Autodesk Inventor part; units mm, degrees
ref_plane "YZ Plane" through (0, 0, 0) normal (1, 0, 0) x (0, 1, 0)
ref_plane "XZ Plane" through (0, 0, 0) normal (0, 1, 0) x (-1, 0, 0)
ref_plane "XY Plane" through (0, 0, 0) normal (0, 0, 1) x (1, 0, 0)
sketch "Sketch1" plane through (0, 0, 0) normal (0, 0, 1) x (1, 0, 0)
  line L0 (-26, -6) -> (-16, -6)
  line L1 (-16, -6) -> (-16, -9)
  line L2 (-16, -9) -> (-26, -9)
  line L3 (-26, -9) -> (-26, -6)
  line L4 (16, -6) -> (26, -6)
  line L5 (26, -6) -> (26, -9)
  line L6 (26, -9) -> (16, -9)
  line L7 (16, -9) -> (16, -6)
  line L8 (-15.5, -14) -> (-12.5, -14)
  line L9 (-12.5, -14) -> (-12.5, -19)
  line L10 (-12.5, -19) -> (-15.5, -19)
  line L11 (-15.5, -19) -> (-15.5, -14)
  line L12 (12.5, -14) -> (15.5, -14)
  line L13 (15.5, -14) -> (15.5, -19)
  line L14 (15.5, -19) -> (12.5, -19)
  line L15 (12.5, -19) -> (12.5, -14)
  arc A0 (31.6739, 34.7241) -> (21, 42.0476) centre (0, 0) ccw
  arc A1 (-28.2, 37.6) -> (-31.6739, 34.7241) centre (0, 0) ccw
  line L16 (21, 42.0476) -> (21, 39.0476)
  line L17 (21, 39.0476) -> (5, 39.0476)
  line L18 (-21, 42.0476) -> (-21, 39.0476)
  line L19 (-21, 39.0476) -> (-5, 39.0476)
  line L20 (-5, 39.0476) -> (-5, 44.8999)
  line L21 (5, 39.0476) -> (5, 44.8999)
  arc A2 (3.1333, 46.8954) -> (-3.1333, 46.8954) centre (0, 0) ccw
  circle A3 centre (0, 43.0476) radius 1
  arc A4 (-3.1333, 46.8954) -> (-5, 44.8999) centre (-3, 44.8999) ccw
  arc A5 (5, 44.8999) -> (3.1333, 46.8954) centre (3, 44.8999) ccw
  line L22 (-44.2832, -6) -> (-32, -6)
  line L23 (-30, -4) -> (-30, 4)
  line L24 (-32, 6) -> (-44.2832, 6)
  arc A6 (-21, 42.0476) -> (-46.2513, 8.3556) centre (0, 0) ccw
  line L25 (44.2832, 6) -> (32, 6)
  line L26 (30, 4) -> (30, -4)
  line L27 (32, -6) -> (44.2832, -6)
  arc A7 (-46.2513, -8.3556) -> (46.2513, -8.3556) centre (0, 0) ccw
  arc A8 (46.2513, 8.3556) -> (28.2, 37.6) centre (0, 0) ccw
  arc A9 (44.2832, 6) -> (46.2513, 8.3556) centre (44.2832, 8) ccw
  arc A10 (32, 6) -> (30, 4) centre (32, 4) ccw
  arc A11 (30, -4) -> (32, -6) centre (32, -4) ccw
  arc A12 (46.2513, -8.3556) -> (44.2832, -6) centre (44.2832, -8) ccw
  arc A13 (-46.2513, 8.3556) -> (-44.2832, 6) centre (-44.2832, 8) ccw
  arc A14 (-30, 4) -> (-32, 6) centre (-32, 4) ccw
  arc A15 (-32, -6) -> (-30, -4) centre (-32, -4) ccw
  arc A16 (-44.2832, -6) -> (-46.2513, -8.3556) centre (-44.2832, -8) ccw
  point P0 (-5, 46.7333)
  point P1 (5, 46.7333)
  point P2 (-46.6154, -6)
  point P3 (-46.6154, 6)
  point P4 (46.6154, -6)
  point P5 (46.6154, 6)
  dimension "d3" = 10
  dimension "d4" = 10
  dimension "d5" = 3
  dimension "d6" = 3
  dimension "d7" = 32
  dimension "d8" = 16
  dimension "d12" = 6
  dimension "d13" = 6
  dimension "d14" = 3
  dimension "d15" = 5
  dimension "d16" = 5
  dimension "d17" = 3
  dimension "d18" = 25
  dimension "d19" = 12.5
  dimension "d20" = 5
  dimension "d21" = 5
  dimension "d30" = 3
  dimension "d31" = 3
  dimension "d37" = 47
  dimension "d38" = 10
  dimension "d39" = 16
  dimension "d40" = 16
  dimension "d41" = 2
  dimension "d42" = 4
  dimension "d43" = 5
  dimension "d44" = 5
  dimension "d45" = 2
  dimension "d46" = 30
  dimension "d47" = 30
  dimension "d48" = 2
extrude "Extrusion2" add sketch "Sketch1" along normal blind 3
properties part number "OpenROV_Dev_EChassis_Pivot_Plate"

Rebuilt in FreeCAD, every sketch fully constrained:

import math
import FreeCAD as App
import Part
import Sketcher
Q = App.Units.Quantity

doc = App.newDocument("Part")
body = doc.addObject("PartDesign::Body", "Body")

sketch1 = doc.addObject("Sketcher::SketchObject", "Sketch")
body.addObject(sketch1)
sketch1.AttachmentSupport = (doc.XY_Plane, [""])
sketch1.MapMode = "FlatFace"
sketch1.addGeometry(Part.ArcOfCircle(Part.Circle(App.Vector(0, 0, 0), App.Vector(0, 0, 1), 47.000007), math.radians(10.240406), math.radians(47.630212)), False)
sketch1.addGeometry(Part.ArcOfCircle(Part.Circle(App.Vector(0, 0, 0), App.Vector(0, 0, 1), 47.000007), math.radians(47.630212), math.radians(63.460899)), False)
sketch1.addGeometry(Part.LineSegment(App.Vector(21, 42.0476, 0), App.Vector(21, 39.0476, 0)), False)
sketch1.addGeometry(Part.LineSegment(App.Vector(21, 39.0476, 0), App.Vector(5, 39.0476, 0)), False)
sketch1.addGeometry(Part.LineSegment(App.Vector(5, 39.0476, 0), App.Vector(5, 44.8999, 0)), False)
sketch1.addGeometry(Part.ArcOfCircle(Part.Circle(App.Vector(3, 44.8999, 0), App.Vector(0, 0, 1), 2), math.radians(0), math.radians(86.178302)), False)
sketch1.addGeometry(Part.ArcOfCircle(Part.Circle(App.Vector(0, 0, 0), App.Vector(0, 0, 1), 46.999959), math.radians(86.177484), math.radians(93.822516)), False)
sketch1.addGeometry(Part.ArcOfCircle(Part.Circle(App.Vector(-3, 44.8999, 0), App.Vector(0, 0, 1), 1.999947), math.radians(93.821698), math.radians(180)), False)
sketch1.addGeometry(Part.LineSegment(App.Vector(-5, 44.8999, 0), App.Vector(-5, 39.0476, 0)), False)
sketch1.addGeometry(Part.LineSegment(App.Vector(-5, 39.0476, 0), App.Vector(-21, 39.0476, 0)), False)
sketch1.addGeometry(Part.LineSegment(App.Vector(-21, 39.0476, 0), App.Vector(-21, 42.0476, 0)), False)
sketch1.addGeometry(Part.ArcOfCircle(Part.Circle(App.Vector(0, 0, 0), App.Vector(0, 0, 1), 46.999959), math.radians(116.539101), math.radians(126.869898)), False)
sketch1.addGeometry(Part.ArcOfCircle(Part.Circle(App.Vector(-0.002682, 0.003403, 0), App.Vector(0, 0, 1), 46.995668), math.radians(126.869771), math.radians(132.370168)), False)
sketch1.addGeometry(Part.ArcOfCircle(Part.Circle(App.Vector(0, 0, 0), App.Vector(0, 0, 1), 46.999959), math.radians(132.369788), math.radians(169.759594)), False)
sketch1.addGeometry(Part.ArcOfCircle(Part.Circle(App.Vector(-44.2832, 8, 0), App.Vector(0, 0, 1), 1.999967), math.radians(169.758188), math.radians(270)), False)
sketch1.addGeometry(Part.LineSegment(App.Vector(-44.2832, 6, 0), App.Vector(-32, 6, 0)), False)
sketch1.addGeometry(Part.ArcOfCircle(Part.Circle(App.Vector(-32, 4, 0), App.Vector(0, 0, 1), 2), math.radians(0), math.radians(90)), False)
sketch1.addGeometry(Part.LineSegment(App.Vector(-30, 4, 0), App.Vector(-30, -4, 0)), False)
sketch1.addGeometry(Part.ArcOfCircle(Part.Circle(App.Vector(-32, -4, 0), App.Vector(0, 0, 1), 2), math.radians(-90), math.radians(0)), False)
sketch1.addGeometry(Part.LineSegment(App.Vector(-32, -6, 0), App.Vector(-44.2832, -6, 0)), False)
sketch1.addGeometry(Part.ArcOfCircle(Part.Circle(App.Vector(-44.2832, -8, 0), App.Vector(0, 0, 1), 2), math.radians(90), math.radians(190.241812)), False)
sketch1.addGeometry(Part.ArcOfCircle(Part.Circle(App.Vector(0, 0, 0), App.Vector(0, 0, 1), 46.999987), math.radians(-169.759594), math.radians(-10.240406)), False)
sketch1.addGeometry(Part.ArcOfCircle(Part.Circle(App.Vector(44.2832, -8, 0), App.Vector(0, 0, 1), 1.999967), math.radians(-10.241812), math.radians(90)), False)
sketch1.addGeometry(Part.LineSegment(App.Vector(44.2832, -6, 0), App.Vector(32, -6, 0)), False)
sketch1.addGeometry(Part.ArcOfCircle(Part.Circle(App.Vector(32, -4, 0), App.Vector(0, 0, 1), 2), math.radians(180), math.radians(270)), False)
sketch1.addGeometry(Part.LineSegment(App.Vector(30, -4, 0), App.Vector(30, 4, 0)), False)
sketch1.addGeometry(Part.ArcOfCircle(Part.Circle(App.Vector(32, 4, 0), App.Vector(0, 0, 1), 2), math.radians(90), math.radians(180)), False)
sketch1.addGeometry(Part.LineSegment(App.Vector(32, 6, 0), App.Vector(44.2832, 6, 0)), False)
sketch1.addGeometry(Part.ArcOfCircle(Part.Circle(App.Vector(44.2832, 8, 0), App.Vector(0, 0, 1), 2), math.radians(-90), math.radians(10.241812)), False)
sketch1.addGeometry(Part.LineSegment(App.Vector(-15.5, -19, 0), App.Vector(-15.5, -14, 0)), False)
sketch1.addGeometry(Part.LineSegment(App.Vector(-15.5, -14, 0), App.Vector(-12.5, -14, 0)), False)
sketch1.addGeometry(Part.LineSegment(App.Vector(-12.5, -14, 0), App.Vector(-12.5, -19, 0)), False)
sketch1.addGeometry(Part.LineSegment(App.Vector(-12.5, -19, 0), App.Vector(-15.5, -19, 0)), False)
sketch1.addGeometry(Part.LineSegment(App.Vector(-26, -9, 0), App.Vector(-26, -6, 0)), False)
sketch1.addGeometry(Part.LineSegment(App.Vector(-26, -6, 0), App.Vector(-16, -6, 0)), False)
sketch1.addGeometry(Part.LineSegment(App.Vector(-16, -6, 0), App.Vector(-16, -9, 0)), False)
sketch1.addGeometry(Part.LineSegment(App.Vector(-16, -9, 0), App.Vector(-26, -9, 0)), False)
sketch1.addGeometry(Part.LineSegment(App.Vector(12.5, -19, 0), App.Vector(12.5, -14, 0)), False)
sketch1.addGeometry(Part.LineSegment(App.Vector(12.5, -14, 0), App.Vector(15.5, -14, 0)), False)
sketch1.addGeometry(Part.LineSegment(App.Vector(15.5, -14, 0), App.Vector(15.5, -19, 0)), False)
sketch1.addGeometry(Part.LineSegment(App.Vector(15.5, -19, 0), App.Vector(12.5, -19, 0)), False)
sketch1.addGeometry(Part.LineSegment(App.Vector(16, -9, 0), App.Vector(16, -6, 0)), False)
sketch1.addGeometry(Part.LineSegment(App.Vector(16, -6, 0), App.Vector(26, -6, 0)), False)
sketch1.addGeometry(Part.LineSegment(App.Vector(26, -6, 0), App.Vector(26, -9, 0)), False)
sketch1.addGeometry(Part.LineSegment(App.Vector(26, -9, 0), App.Vector(16, -9, 0)), False)
sketch1.addGeometry(Part.Circle(App.Vector(0, 43.0476, 0), App.Vector(0, 0, 1), 1), False)
sketch1.addConstraint(Sketcher.Constraint("Coincident", 0, 2, 1, 1))
sketch1.addConstraint(Sketcher.Constraint("Coincident", 1, 2, 2, 1))
sketch1.addConstraint(Sketcher.Constraint("Coincident", 2, 2, 3, 1))
sketch1.addConstraint(Sketcher.Constraint("Coincident", 3, 2, 4, 1))
sketch1.addConstraint(Sketcher.Constraint("Coincident", 4, 2, 5, 1))
sketch1.addConstraint(Sketcher.Constraint("Coincident", 5, 2, 6, 1))
sketch1.addConstraint(Sketcher.Constraint("Coincident", 6, 2, 7, 1))
sketch1.addConstraint(Sketcher.Constraint("Coincident", 7, 2, 8, 1))
sketch1.addConstraint(Sketcher.Constraint("Coincident", 8, 2, 9, 1))
sketch1.addConstraint(Sketcher.Constraint("Coincident", 9, 2, 10, 1))
sketch1.addConstraint(Sketcher.Constraint("Coincident", 10, 2, 11, 1))
sketch1.addConstraint(Sketcher.Constraint("Coincident", 11, 2, 12, 1))
sketch1.addConstraint(Sketcher.Constraint("Coincident", 12, 2, 13, 1))
sketch1.addConstraint(Sketcher.Constraint("Coincident", 13, 2, 14, 1))
sketch1.addConstraint(Sketcher.Constraint("Coincident", 14, 2, 15, 1))
sketch1.addConstraint(Sketcher.Constraint("Coincident", 15, 2, 16, 2))
sketch1.addConstraint(Sketcher.Constraint("Coincident", 16, 1, 17, 1))
sketch1.addConstraint(Sketcher.Constraint("Coincident", 17, 2, 18, 2))
sketch1.addConstraint(Sketcher.Constraint("Coincident", 18, 1, 19, 1))
sketch1.addConstraint(Sketcher.Constraint("Coincident", 19, 2, 20, 1))
sketch1.addConstraint(Sketcher.Constraint("Coincident", 20, 2, 21, 1))
sketch1.addConstraint(Sketcher.Constraint("Coincident", 21, 2, 22, 1))
sketch1.addConstraint(Sketcher.Constraint("Coincident", 22, 2, 23, 1))
sketch1.addConstraint(Sketcher.Constraint("Coincident", 23, 2, 24, 2))
sketch1.addConstraint(Sketcher.Constraint("Coincident", 24, 1, 25, 1))
sketch1.addConstraint(Sketcher.Constraint("Coincident", 25, 2, 26, 2))
sketch1.addConstraint(Sketcher.Constraint("Coincident", 26, 1, 27, 1))
sketch1.addConstraint(Sketcher.Constraint("Coincident", 27, 2, 28, 1))
sketch1.addConstraint(Sketcher.Constraint("Coincident", 28, 2, 0, 1))
sketch1.addConstraint(Sketcher.Constraint("Coincident", 29, 2, 30, 1))
sketch1.addConstraint(Sketcher.Constraint("Coincident", 30, 2, 31, 1))
sketch1.addConstraint(Sketcher.Constraint("Coincident", 31, 2, 32, 1))
sketch1.addConstraint(Sketcher.Constraint("Coincident", 32, 2, 29, 1))
sketch1.addConstraint(Sketcher.Constraint("Coincident", 33, 2, 34, 1))
sketch1.addConstraint(Sketcher.Constraint("Coincident", 34, 2, 35, 1))
sketch1.addConstraint(Sketcher.Constraint("Coincident", 35, 2, 36, 1))
sketch1.addConstraint(Sketcher.Constraint("Coincident", 36, 2, 33, 1))
sketch1.addConstraint(Sketcher.Constraint("Coincident", 37, 2, 38, 1))
sketch1.addConstraint(Sketcher.Constraint("Coincident", 38, 2, 39, 1))
sketch1.addConstraint(Sketcher.Constraint("Coincident", 39, 2, 40, 1))
sketch1.addConstraint(Sketcher.Constraint("Coincident", 40, 2, 37, 1))
sketch1.addConstraint(Sketcher.Constraint("Coincident", 41, 2, 42, 1))
sketch1.addConstraint(Sketcher.Constraint("Coincident", 42, 2, 43, 1))
sketch1.addConstraint(Sketcher.Constraint("Coincident", 43, 2, 44, 1))
sketch1.addConstraint(Sketcher.Constraint("Coincident", 44, 2, 41, 1))
sketch1.addConstraint(Sketcher.Constraint("Vertical", 2))
sketch1.addConstraint(Sketcher.Constraint("Horizontal", 3))
sketch1.addConstraint(Sketcher.Constraint("Vertical", 4))
sketch1.addConstraint(Sketcher.Constraint("Vertical", 8))
sketch1.addConstraint(Sketcher.Constraint("Horizontal", 9))
sketch1.addConstraint(Sketcher.Constraint("Vertical", 10))
sketch1.addConstraint(Sketcher.Constraint("Horizontal", 15))
sketch1.addConstraint(Sketcher.Constraint("Vertical", 17))
sketch1.addConstraint(Sketcher.Constraint("Horizontal", 19))
sketch1.addConstraint(Sketcher.Constraint("Horizontal", 23))
sketch1.addConstraint(Sketcher.Constraint("Vertical", 25))
sketch1.addConstraint(Sketcher.Constraint("Horizontal", 27))
sketch1.addConstraint(Sketcher.Constraint("Vertical", 29))
sketch1.addConstraint(Sketcher.Constraint("Horizontal", 30))
sketch1.addConstraint(Sketcher.Constraint("Vertical", 31))
sketch1.addConstraint(Sketcher.Constraint("Horizontal", 32))
sketch1.addConstraint(Sketcher.Constraint("Vertical", 33))
sketch1.addConstraint(Sketcher.Constraint("Horizontal", 34))
sketch1.addConstraint(Sketcher.Constraint("Vertical", 35))
sketch1.addConstraint(Sketcher.Constraint("Horizontal", 36))
sketch1.addConstraint(Sketcher.Constraint("Vertical", 37))
sketch1.addConstraint(Sketcher.Constraint("Horizontal", 38))
sketch1.addConstraint(Sketcher.Constraint("Vertical", 39))
sketch1.addConstraint(Sketcher.Constraint("Horizontal", 40))
sketch1.addConstraint(Sketcher.Constraint("Vertical", 41))
sketch1.addConstraint(Sketcher.Constraint("Horizontal", 42))
sketch1.addConstraint(Sketcher.Constraint("Vertical", 43))
sketch1.addConstraint(Sketcher.Constraint("Horizontal", 44))
sketch1.addConstraint(Sketcher.Constraint("Coincident", 0, 3, -1, 1))
sketch1.addConstraint(Sketcher.Constraint("Coincident", 1, 3, -1, 1))
sketch1.addConstraint(Sketcher.Constraint("Coincident", 6, 3, -1, 1))
sketch1.addConstraint(Sketcher.Constraint("Coincident", 11, 3, -1, 1))
sketch1.addConstraint(Sketcher.Constraint("Coincident", 13, 3, -1, 1))
sketch1.addConstraint(Sketcher.Constraint("Coincident", 21, 3, -1, 1))
sketch1.addConstraint(Sketcher.Constraint("PointOnObject", 45, 3, -2))
sketch1.addConstraint(Sketcher.Constraint("Diameter", 45, Q("2 mm")))
sketch1.addConstraint(Sketcher.Constraint("Radius", 0, Q("47 mm")))
sketch1.addConstraint(Sketcher.Constraint("Radius", 5, Q("2 mm")))
sketch1.addConstraint(Sketcher.Constraint("Radius", 6, Q("47 mm")))
sketch1.addConstraint(Sketcher.Constraint("Radius", 7, Q("2 mm")))
sketch1.addConstraint(Sketcher.Constraint("Radius", 11, Q("47 mm")))
sketch1.addConstraint(Sketcher.Constraint("Radius", 13, Q("47 mm")))
sketch1.addConstraint(Sketcher.Constraint("Radius", 14, Q("2 mm")))
sketch1.addConstraint(Sketcher.Constraint("Radius", 16, Q("2 mm")))
sketch1.addConstraint(Sketcher.Constraint("Radius", 18, Q("2 mm")))
sketch1.addConstraint(Sketcher.Constraint("Radius", 20, Q("2 mm")))
sketch1.addConstraint(Sketcher.Constraint("Radius", 21, Q("47 mm")))
sketch1.addConstraint(Sketcher.Constraint("Radius", 22, Q("2 mm")))
sketch1.addConstraint(Sketcher.Constraint("Radius", 24, Q("2 mm")))
sketch1.addConstraint(Sketcher.Constraint("Radius", 26, Q("2 mm")))
sketch1.addConstraint(Sketcher.Constraint("Radius", 28, Q("2 mm")))
sketch1.addConstraint(Sketcher.Constraint("DistanceX", 3, 2, 3, 1, Q("16 mm")))
sketch1.addConstraint(Sketcher.Constraint("DistanceX", 9, 2, 9, 1, Q("16 mm")))
sketch1.addConstraint(Sketcher.Constraint("DistanceX", 30, 1, 30, 2, Q("3 mm")))
sketch1.addConstraint(Sketcher.Constraint("DistanceX", 34, 1, 34, 2, Q("10 mm")))
sketch1.addConstraint(Sketcher.Constraint("DistanceX", 38, 1, 38, 2, Q("3 mm")))
sketch1.addConstraint(Sketcher.Constraint("DistanceX", 42, 1, 42, 2, Q("10 mm")))
sketch1.addConstraint(Sketcher.Constraint("DistanceY", 2, 2, 2, 1, Q("3 mm")))
sketch1.addConstraint(Sketcher.Constraint("DistanceY", 10, 1, 10, 2, Q("3 mm")))
sketch1.addConstraint(Sketcher.Constraint("DistanceY", 29, 1, 29, 2, Q("5 mm")))
sketch1.addConstraint(Sketcher.Constraint("DistanceY", 33, 1, 33, 2, Q("3 mm")))
sketch1.addConstraint(Sketcher.Constraint("DistanceY", 37, 1, 37, 2, Q("5 mm")))
sketch1.addConstraint(Sketcher.Constraint("DistanceY", 41, 1, 41, 2, Q("3 mm")))
sketch1.addConstraint(Sketcher.Constraint("DistanceX", -1, 1, 5, 3, Q("3 mm")))
sketch1.addConstraint(Sketcher.Constraint("DistanceX", 7, 3, -1, 1, Q("3 mm")))
sketch1.addConstraint(Sketcher.Constraint("DistanceX", 16, 3, -1, 1, Q("32 mm")))
sketch1.addConstraint(Sketcher.Constraint("DistanceY", -1, 1, 16, 3, Q("4 mm")))
sketch1.addConstraint(Sketcher.Constraint("DistanceY", 18, 3, -1, 1, Q("4 mm")))
sketch1.addConstraint(Sketcher.Constraint("DistanceX", -1, 1, 24, 3, Q("32 mm")))
sketch1.addConstraint(Sketcher.Constraint("DistanceY", 24, 3, -1, 1, Q("4 mm")))
sketch1.addConstraint(Sketcher.Constraint("DistanceY", -1, 1, 26, 3, Q("4 mm")))
sketch1.addConstraint(Sketcher.Constraint("DistanceX", 15, 2, -1, 1, Q("32 mm")))
sketch1.addConstraint(Sketcher.Constraint("DistanceY", -1, 1, 16, 1, Q("4 mm")))
sketch1.addConstraint(Sketcher.Constraint("DistanceY", 17, 2, -1, 1, Q("4 mm")))
sketch1.addConstraint(Sketcher.Constraint("DistanceX", 18, 1, -1, 1, Q("32 mm")))
sketch1.addConstraint(Sketcher.Constraint("DistanceX", -1, 1, 23, 2, Q("32 mm")))
sketch1.addConstraint(Sketcher.Constraint("DistanceY", 24, 1, -1, 1, Q("4 mm")))
sketch1.addConstraint(Sketcher.Constraint("DistanceY", -1, 1, 25, 2, Q("4 mm")))
sketch1.addConstraint(Sketcher.Constraint("DistanceX", -1, 1, 26, 1, Q("32 mm")))
sketch1.addConstraint(Sketcher.Constraint("DistanceY", 33, 2, -1, 1, Q("6 mm")))
sketch1.addConstraint(Sketcher.Constraint("DistanceX", 34, 2, -1, 1, Q("16 mm")))
sketch1.addConstraint(Sketcher.Constraint("DistanceX", -1, 1, 41, 2, Q("16 mm")))
sketch1.addConstraint(Sketcher.Constraint("DistanceY", 41, 2, -1, 1, Q("6 mm")))
sketch1.addConstraint(Sketcher.Constraint("DistanceX", 30, 2, -1, 1, Q("12.5 mm")))
sketch1.addConstraint(Sketcher.Constraint("DistanceX", -1, 1, 37, 2, Q("12.5 mm")))
sketch1.addConstraint(Sketcher.Constraint("DistanceY", 29, 2, -1, 1, Q("14 mm")))
sketch1.addConstraint(Sketcher.Constraint("DistanceY", 37, 2, -1, 1, Q("14 mm")))
sketch1.addConstraint(Sketcher.Constraint("DistanceY", -1, 1, 4, 2, Q("44.9 mm")))
sketch1.addConstraint(Sketcher.Constraint("DistanceY", -1, 1, 7, 2, Q("44.9 mm")))
sketch1.addConstraint(Sketcher.Constraint("DistanceX", 11, 2, -1, 1, Q("28.2 mm")))
sketch1.addConstraint(Sketcher.Constraint("Radius", 12, Q("46.9957 mm")))
sketch1.addConstraint(Sketcher.Constraint("DistanceX", 15, 1, 15, 2, Q("12.2832 mm")))
sketch1.addConstraint(Sketcher.Constraint("DistanceX", 19, 2, 19, 1, Q("12.2832 mm")))
sketch1.addConstraint(Sketcher.Constraint("DistanceX", 23, 2, 23, 1, Q("12.2832 mm")))
sketch1.addConstraint(Sketcher.Constraint("DistanceX", 27, 1, 27, 2, Q("12.2832 mm")))
sketch1.addConstraint(Sketcher.Constraint("DistanceX", -1, 1, 0, 2, Q("31.674 mm")))
sketch1.addConstraint(Sketcher.Constraint("DistanceX", 12, 2, -1, 1, Q("31.674 mm")))
sketch1.addConstraint(Sketcher.Constraint("DistanceY", -1, 1, 45, 3, Q("43.0476 mm")))
sketch1.addConstraint(Sketcher.Constraint("DistanceX", -1, 1, 5, 2, Q("3.1333 mm")))
sketch1.addConstraint(Sketcher.Constraint("DistanceX", 6, 2, -1, 1, Q("3.1333 mm")))
sketch1.addConstraint(Sketcher.Constraint("DistanceX", 13, 2, -1, 1, Q("46.2513 mm")))
sketch1.addConstraint(Sketcher.Constraint("DistanceX", 20, 2, -1, 1, Q("46.2513 mm")))
sketch1.addConstraint(Sketcher.Constraint("DistanceX", -1, 1, 21, 2, Q("46.2513 mm")))
sketch1.addConstraint(Sketcher.Constraint("DistanceX", -1, 1, 28, 2, Q("46.2513 mm")))
pad1 = doc.addObject("PartDesign::Pad", "Pad")
body.addObject(pad1)
pad1.Profile = sketch1
pad1.Length = 3

doc.recompute()
